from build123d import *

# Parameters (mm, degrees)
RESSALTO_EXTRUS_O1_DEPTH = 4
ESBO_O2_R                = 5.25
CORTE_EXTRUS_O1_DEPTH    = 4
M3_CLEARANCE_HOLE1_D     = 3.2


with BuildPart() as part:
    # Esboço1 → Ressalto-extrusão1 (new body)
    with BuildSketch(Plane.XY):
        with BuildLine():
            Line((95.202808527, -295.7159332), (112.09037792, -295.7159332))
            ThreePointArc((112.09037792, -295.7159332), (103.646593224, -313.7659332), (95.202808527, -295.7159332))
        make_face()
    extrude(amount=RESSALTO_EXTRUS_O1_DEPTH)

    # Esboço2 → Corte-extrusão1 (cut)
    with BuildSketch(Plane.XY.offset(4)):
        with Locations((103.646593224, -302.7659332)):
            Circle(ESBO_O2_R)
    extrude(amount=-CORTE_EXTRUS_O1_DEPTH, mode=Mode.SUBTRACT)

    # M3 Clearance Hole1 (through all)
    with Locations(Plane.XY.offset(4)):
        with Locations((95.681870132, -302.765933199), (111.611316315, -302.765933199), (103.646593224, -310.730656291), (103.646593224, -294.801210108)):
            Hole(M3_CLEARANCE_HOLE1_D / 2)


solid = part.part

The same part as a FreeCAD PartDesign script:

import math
import FreeCAD as App
import Part
import Sketcher

V = App.Vector
Q = App.Units.Quantity

doc = App.newDocument("Part")
body = doc.addObject("PartDesign::Body", "Body")

sketch1 = doc.addObject("Sketcher::SketchObject", "Sketch")
body.addObject(sketch1)
sketch1.AttachmentSupport = (doc.XY_Plane, [""])
sketch1.MapMode = "FlatFace"
sketch1.addGeometry(Part.LineSegment(V(112.090378, -295.715933, 0), V(95.202809, -295.715933, 0)), False)
sketch1.addGeometry(Part.ArcOfCircle(Part.Circle(V(103.646593, -302.765933, 0), V(0, 0, 1), 11), math.radians(140.140358), math.radians(399.859642)), False)
sketch1.addConstraint(Sketcher.Constraint("Coincident", 0, 1, 1, 2))
sketch1.addConstraint(Sketcher.Constraint("Coincident", 1, 1, 0, 2))
sketch1.addConstraint(Sketcher.Constraint("Horizontal", 0))
sketch1.addConstraint(Sketcher.Constraint("Radius", 1, Q("11 mm")))
sketch1.addConstraint(Sketcher.Constraint("DistanceY", 1, 3, 0, 1, Q("7.05 mm")))
sketch1.addConstraint(Sketcher.Constraint("DistanceX", -1, 1, 1, 1, Q("95.202809 mm")))
sketch1.addConstraint(Sketcher.Constraint("DistanceY", 1, 3, -1, 1, Q("302.765933 mm")))
pad1 = doc.addObject("PartDesign::Pad", "Pad")
body.addObject(pad1)
pad1.Profile = sketch1
pad1.Length = 4

sketch2 = doc.addObject("Sketcher::SketchObject", "Sketch001")
body.addObject(sketch2)
sketch2.AttachmentSupport = (doc.XY_Plane, [""])
sketch2.MapMode = "FlatFace"
sketch2.AttachmentOffset = App.Placement(V(0, 0, 4), App.Rotation())
sketch2.addGeometry(Part.Circle(V(103.646593, -302.765933, 0), V(0, 0, 1), 5.25), False)
sketch2.addConstraint(Sketcher.Constraint("Diameter", 0, Q("10.5 mm")))
sketch2.addConstraint(Sketcher.Constraint("DistanceX", -1, 1, 0, 3, Q("103.646593 mm")))
sketch2.addConstraint(Sketcher.Constraint("DistanceY", 0, 3, -1, 1, Q("302.765933 mm")))
pocket1 = doc.addObject("PartDesign::Pocket", "Pocket")
body.addObject(pocket1)
pocket1.Profile = sketch2
pocket1.Length = 4

sketch3 = doc.addObject("Sketcher::SketchObject", "Sketch002")
body.addObject(sketch3)
sketch3.AttachmentSupport = (doc.XY_Plane, [""])
sketch3.MapMode = "FlatFace"
sketch3.AttachmentOffset = App.Placement(V(0, 0, 4), App.Rotation())
sketch3.addGeometry(Part.Circle(V(95.68187, -302.765933, 0), V(0, 0, 1), 1.6), False)
sketch3.addGeometry(Part.Circle(V(111.611316, -302.765933, 0), V(0, 0, 1), 1.6), False)
sketch3.addGeometry(Part.Circle(V(103.646593, -310.730656, 0), V(0, 0, 1), 1.6), False)
sketch3.addGeometry(Part.Circle(V(103.646593, -294.80121, 0), V(0, 0, 1), 1.6), False)
sketch3.addConstraint(Sketcher.Constraint("Equal", 0, 1))
sketch3.addConstraint(Sketcher.Constraint("Equal", 1, 2))
sketch3.addConstraint(Sketcher.Constraint("Equal", 2, 3))
sketch3.addConstraint(Sketcher.Constraint("Horizontal", 0, 3, 1, 3))
sketch3.addConstraint(Sketcher.Constraint("Vertical", 2, 3, 3, 3))
sketch3.addConstraint(Sketcher.Constraint("Diameter", 0, Q("3.2 mm")))
sketch3.addConstraint(Sketcher.Constraint("DistanceX", -1, 1, 0, 3, Q("95.68187 mm")))
sketch3.addConstraint(Sketcher.Constraint("DistanceY", 3, 3, -1, 1, Q("294.80121 mm")))
sketch3.addConstraint(Sketcher.Constraint("DistanceY", 0, 3, -1, 1, Q("302.765933 mm")))
sketch3.addConstraint(Sketcher.Constraint("DistanceX", -1, 1, 1, 3, Q("111.611316 mm")))
sketch3.addConstraint(Sketcher.Constraint("DistanceX", -1, 1, 2, 3, Q("103.646593 mm")))
sketch3.addConstraint(Sketcher.Constraint("DistanceY", 2, 3, -1, 1, Q("310.730656 mm")))
doc.recompute()
hole = doc.addObject("PartDesign::Hole", "Hole")
body.addObject(hole)
hole.Profile = sketch3
hole.ThreadType = "None"
hole.Diameter = 3.2
hole.DepthType = "ThroughAll"

doc.recompute()
